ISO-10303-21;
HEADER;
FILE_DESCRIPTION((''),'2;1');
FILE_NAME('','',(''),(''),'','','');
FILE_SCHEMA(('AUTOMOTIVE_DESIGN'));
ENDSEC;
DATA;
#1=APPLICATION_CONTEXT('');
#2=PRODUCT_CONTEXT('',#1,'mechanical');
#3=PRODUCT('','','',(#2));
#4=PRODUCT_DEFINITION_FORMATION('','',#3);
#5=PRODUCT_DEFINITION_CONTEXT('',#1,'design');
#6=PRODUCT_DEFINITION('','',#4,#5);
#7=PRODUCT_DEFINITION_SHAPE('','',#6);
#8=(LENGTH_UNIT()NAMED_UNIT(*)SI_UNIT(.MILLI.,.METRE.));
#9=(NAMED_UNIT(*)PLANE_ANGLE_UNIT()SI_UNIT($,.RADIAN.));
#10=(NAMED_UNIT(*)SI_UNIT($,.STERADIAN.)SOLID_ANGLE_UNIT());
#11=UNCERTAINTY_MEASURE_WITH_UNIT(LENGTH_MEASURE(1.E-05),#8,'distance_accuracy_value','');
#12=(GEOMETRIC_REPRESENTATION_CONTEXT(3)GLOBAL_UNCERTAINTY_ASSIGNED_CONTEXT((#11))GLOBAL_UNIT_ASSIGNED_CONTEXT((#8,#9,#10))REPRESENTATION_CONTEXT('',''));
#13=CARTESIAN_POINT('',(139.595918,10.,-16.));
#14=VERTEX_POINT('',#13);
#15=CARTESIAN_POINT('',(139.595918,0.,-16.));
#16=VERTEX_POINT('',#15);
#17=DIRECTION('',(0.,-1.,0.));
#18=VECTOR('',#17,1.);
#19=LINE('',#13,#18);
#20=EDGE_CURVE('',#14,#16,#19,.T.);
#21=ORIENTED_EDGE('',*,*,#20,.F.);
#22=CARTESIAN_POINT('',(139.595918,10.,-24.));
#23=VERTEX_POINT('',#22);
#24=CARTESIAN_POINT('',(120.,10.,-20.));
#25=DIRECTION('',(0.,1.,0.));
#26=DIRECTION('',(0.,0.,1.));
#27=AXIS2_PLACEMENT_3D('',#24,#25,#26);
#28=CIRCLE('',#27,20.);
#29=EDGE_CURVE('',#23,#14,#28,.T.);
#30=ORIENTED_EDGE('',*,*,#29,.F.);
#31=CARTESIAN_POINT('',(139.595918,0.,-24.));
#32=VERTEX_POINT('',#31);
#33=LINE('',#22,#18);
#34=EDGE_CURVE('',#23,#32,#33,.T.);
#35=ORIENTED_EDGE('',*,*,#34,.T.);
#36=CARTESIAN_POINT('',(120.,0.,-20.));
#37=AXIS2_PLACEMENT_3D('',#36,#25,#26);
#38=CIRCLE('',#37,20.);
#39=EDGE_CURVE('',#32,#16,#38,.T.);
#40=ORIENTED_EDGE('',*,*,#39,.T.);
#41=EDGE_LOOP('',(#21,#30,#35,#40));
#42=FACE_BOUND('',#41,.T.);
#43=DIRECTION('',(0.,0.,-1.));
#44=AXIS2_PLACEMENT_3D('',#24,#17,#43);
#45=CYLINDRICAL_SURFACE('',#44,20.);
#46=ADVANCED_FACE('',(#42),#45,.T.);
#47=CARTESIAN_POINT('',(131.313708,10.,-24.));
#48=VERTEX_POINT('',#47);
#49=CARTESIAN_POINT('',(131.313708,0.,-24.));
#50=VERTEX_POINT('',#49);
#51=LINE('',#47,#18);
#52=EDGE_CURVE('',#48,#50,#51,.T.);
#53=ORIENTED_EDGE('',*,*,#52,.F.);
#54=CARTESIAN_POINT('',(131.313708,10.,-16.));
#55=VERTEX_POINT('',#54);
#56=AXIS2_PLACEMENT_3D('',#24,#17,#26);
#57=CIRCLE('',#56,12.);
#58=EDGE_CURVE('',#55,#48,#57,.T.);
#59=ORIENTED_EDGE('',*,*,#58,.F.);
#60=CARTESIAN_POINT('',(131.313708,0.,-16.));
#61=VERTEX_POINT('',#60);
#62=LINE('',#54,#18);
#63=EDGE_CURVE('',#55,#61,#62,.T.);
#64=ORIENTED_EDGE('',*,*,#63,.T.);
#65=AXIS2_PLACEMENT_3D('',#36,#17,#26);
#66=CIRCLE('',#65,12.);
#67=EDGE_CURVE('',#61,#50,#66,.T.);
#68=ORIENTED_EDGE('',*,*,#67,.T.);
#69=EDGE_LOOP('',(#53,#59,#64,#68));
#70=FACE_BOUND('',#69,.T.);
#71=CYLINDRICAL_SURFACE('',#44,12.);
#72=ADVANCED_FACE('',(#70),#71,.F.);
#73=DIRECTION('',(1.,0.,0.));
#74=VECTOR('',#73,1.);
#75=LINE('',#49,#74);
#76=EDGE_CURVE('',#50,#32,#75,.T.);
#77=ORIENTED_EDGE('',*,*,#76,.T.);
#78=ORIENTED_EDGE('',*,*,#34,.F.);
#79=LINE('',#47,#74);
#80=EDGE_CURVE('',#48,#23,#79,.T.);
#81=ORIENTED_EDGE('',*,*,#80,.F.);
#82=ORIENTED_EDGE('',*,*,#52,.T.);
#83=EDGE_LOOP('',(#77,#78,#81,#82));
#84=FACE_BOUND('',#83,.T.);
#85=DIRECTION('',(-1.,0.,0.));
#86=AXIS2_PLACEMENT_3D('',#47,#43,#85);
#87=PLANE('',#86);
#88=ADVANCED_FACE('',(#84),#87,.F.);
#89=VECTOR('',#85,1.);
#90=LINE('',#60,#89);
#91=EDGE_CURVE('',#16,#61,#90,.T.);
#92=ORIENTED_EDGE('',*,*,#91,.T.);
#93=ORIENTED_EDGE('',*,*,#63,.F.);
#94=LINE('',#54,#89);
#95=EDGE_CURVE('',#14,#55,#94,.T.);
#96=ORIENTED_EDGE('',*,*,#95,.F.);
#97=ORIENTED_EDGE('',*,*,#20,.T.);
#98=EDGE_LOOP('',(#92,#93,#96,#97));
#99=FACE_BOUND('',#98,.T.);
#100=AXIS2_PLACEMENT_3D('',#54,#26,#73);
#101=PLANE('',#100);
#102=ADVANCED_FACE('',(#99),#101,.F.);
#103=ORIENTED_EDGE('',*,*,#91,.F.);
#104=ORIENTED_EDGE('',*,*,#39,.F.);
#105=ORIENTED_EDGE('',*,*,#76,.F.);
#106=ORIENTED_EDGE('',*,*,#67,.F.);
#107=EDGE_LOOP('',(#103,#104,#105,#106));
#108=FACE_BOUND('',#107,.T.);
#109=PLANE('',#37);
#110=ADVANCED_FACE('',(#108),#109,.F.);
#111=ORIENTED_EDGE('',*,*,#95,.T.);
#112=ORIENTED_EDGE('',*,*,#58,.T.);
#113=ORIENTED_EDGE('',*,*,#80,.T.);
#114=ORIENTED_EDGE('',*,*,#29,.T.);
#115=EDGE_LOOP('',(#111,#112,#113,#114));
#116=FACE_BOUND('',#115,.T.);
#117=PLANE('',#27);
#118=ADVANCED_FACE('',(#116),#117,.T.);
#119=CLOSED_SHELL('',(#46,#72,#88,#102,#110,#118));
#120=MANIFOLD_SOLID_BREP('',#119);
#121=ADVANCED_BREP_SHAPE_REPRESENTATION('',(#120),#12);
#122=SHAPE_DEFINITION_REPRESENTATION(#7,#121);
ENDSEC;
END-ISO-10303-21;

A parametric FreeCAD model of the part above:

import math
import FreeCAD as App
import Part
import Sketcher

doc = App.newDocument("Part")
body = doc.addObject("PartDesign::Body", "Body")

# Sketch on XZ plane
sketch1 = doc.addObject("Sketcher::SketchObject", "Sketch")
body.addObject(sketch1)
sketch1.AttachmentSupport = (doc.XZ_Plane, [""])
sketch1.MapMode = "FlatFace"
sketch1.addGeometry([
    Part.LineSegment(App.Vector(131, -24, 0), App.Vector(140, -24, 0)),
    Part.ArcOfCircle(Part.Circle(App.Vector(120, -20, 0), App.Vector(0, 0, 1), 20), math.radians(12), math.radians(348)),
    Part.LineSegment(App.Vector(140, -16, 0), App.Vector(131, -16, 0)),
    Part.ArcOfCircle(Part.Circle(App.Vector(120, -20, 0), App.Vector(0, 0, 1), 12), math.radians(19), math.radians(341)),
], False)
sketch1.addConstraint([
    Sketcher.Constraint("Coincident", 0, 2, 1, 2),
    Sketcher.Constraint("Coincident", 1, 1, 2, 1),
    Sketcher.Constraint("Coincident", 2, 2, 3, 1),
    Sketcher.Constraint("Coincident", 3, 2, 0, 1),
    Sketcher.Constraint("Horizontal", 0),
    Sketcher.Constraint("Horizontal", 2),
    Sketcher.Constraint("Coincident", 3, 3, 1, 3),
    Sketcher.Constraint("Vertical", 0, 2, 1, 1),
    Sketcher.Constraint("Radius", 1, 20.0),
    Sketcher.Constraint("Radius", 3, 12.0),
    Sketcher.Constraint("DistanceX", -1, 1, 1, 3, 120.0),
    Sketcher.Constraint("DistanceY", 1, 3, -1, 1, 20.0),
    Sketcher.Constraint("DistanceY", 0, 2, -1, 1, 24.0),
])
pad1 = doc.addObject("PartDesign::Pad", "Pad")
body.addObject(pad1)
pad1.Profile = sketch1
pad1.Length = 10
pad1.Reversed = True

doc.recompute()
